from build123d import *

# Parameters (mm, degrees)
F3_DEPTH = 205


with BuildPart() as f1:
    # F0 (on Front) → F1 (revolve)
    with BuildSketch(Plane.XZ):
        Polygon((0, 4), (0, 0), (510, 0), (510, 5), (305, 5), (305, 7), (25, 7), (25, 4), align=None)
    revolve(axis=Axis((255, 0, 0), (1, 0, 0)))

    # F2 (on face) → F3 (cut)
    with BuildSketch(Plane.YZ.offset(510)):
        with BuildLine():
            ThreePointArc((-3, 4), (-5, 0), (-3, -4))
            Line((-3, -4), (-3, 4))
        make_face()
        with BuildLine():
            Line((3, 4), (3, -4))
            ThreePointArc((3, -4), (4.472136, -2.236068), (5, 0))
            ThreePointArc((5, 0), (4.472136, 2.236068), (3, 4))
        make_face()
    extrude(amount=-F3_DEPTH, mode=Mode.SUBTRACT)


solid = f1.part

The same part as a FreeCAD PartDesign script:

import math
import FreeCAD as App
import Part
import Sketcher
Q = App.Units.Quantity


def add_polygon(sketch, points):
    """Adds a closed chain of lines whose ends are joined by coincident constraints."""
    first, n = sketch.GeometryCount, len(points)
    for a, b in zip(points, points[1:] + points[:1]):
        sketch.addGeometry(Part.LineSegment(App.Vector(*a, 0), App.Vector(*b, 0)), False)
    for i in range(n):
        sketch.addConstraint(Sketcher.Constraint("Coincident", first + i, 2, first + (i + 1) % n, 1))

doc = App.newDocument("Part")
body = doc.addObject("PartDesign::Body", "Body")

# Sketch on XZ plane
sketch1 = body.newObject("Sketcher::SketchObject", "Sketch")
sketch1.AttachmentSupport = (doc.getObject("XZ_Plane"), [""])
sketch1.MapMode = "FlatFace"
add_polygon(sketch1, [(0, 4), (0, 0), (510, 0), (510, 5), (305, 5), (305, 7), (25, 7), (25, 4)])  # lines 0-7
sketch1.addConstraint([
    Sketcher.Constraint("Vertical", 0),
    Sketcher.Constraint("Horizontal", 1),
    Sketcher.Constraint("Vertical", 2),
    Sketcher.Constraint("Horizontal", 3),
    Sketcher.Constraint("Vertical", 4),
    Sketcher.Constraint("Horizontal", 5),
    Sketcher.Constraint("Vertical", 6),
    Sketcher.Constraint("Horizontal", 7),
    Sketcher.Constraint("Coincident", 0, 2, -1, 1),
    Sketcher.Constraint("DistanceX", 1, 1, 1, 2, Q("510 mm")),
    Sketcher.Constraint("DistanceX", 3, 2, 3, 1, Q("205 mm")),
    Sketcher.Constraint("DistanceX", 5, 2, 5, 1, Q("280 mm")),
    Sketcher.Constraint("DistanceY", 0, 2, 0, 1, Q("4 mm")),
    Sketcher.Constraint("DistanceY", 2, 1, 2, 2, Q("5 mm")),
    Sketcher.Constraint("DistanceY", 4, 1, 4, 2, Q("2 mm")),
])
revolution = body.newObject("PartDesign::Revolution", "Revolution")
revolution.Profile = sketch1
revolution.ReferenceAxis = (sketch1, ["H_Axis"])
revolution.Angle = 360

# Sketch on YZ plane
sketch2 = body.newObject("Sketcher::SketchObject", "Sketch001")
sketch2.AttachmentSupport = (doc.getObject("YZ_Plane"), [""])
sketch2.MapMode = "FlatFace"
sketch2.AttachmentOffset = App.Placement(App.Vector(0, 0, 510), App.Rotation())
sketch2.addGeometry([
    Part.ArcOfCircle(Part.Circle(App.Vector(0, 0, 0), App.Vector(0, 0, 1), 5), math.radians(127), math.radians(233)),  # 0
    Part.LineSegment(App.Vector(-3, -4, 0), App.Vector(-3, 4, 0)),  # 1
    Part.LineSegment(App.Vector(3, 4, 0), App.Vector(3, -4, 0)),  # 2
    Part.ArcOfCircle(Part.Circle(App.Vector(0, 0, 0), App.Vector(0, 0, 1), 5), math.radians(-53), math.radians(0)),  # 3
    Part.ArcOfCircle(Part.Circle(App.Vector(0, 0, 0), App.Vector(0, 0, 1), 5), math.radians(0), math.radians(53)),  # 4
], False)
sketch2.addConstraint([
    Sketcher.Constraint("Coincident", 0, 1, 1, 2),
    Sketcher.Constraint("Coincident", 1, 1, 0, 2),
    Sketcher.Constraint("Coincident", 2, 2, 3, 1),
    Sketcher.Constraint("Tangent", 3, 2, 4, 1),
    Sketcher.Constraint("Coincident", 4, 2, 2, 1),
    Sketcher.Constraint("Vertical", 1),
    Sketcher.Constraint("Vertical", 2),
    Sketcher.Constraint("Coincident", 0, 3, -1, 1),
    Sketcher.Constraint("Coincident", 3, 3, -1, 1),
    Sketcher.Constraint("Equal", 0, 3),
    Sketcher.Constraint("Equal", 3, 4),
    Sketcher.Constraint("PointOnObject", 3, 2, -1),
    Sketcher.Constraint("Horizontal", 1, 1, 2, 2),
    Sketcher.Constraint("Radius", 0, Q("5 mm")),
    Sketcher.Constraint("DistanceY", 1, 1, 1, 2, Q("8 mm")),
])
pocket1 = body.newObject("PartDesign::Pocket", "Pocket")
pocket1.Profile = sketch2
pocket1.Length = 205

doc.recompute()
